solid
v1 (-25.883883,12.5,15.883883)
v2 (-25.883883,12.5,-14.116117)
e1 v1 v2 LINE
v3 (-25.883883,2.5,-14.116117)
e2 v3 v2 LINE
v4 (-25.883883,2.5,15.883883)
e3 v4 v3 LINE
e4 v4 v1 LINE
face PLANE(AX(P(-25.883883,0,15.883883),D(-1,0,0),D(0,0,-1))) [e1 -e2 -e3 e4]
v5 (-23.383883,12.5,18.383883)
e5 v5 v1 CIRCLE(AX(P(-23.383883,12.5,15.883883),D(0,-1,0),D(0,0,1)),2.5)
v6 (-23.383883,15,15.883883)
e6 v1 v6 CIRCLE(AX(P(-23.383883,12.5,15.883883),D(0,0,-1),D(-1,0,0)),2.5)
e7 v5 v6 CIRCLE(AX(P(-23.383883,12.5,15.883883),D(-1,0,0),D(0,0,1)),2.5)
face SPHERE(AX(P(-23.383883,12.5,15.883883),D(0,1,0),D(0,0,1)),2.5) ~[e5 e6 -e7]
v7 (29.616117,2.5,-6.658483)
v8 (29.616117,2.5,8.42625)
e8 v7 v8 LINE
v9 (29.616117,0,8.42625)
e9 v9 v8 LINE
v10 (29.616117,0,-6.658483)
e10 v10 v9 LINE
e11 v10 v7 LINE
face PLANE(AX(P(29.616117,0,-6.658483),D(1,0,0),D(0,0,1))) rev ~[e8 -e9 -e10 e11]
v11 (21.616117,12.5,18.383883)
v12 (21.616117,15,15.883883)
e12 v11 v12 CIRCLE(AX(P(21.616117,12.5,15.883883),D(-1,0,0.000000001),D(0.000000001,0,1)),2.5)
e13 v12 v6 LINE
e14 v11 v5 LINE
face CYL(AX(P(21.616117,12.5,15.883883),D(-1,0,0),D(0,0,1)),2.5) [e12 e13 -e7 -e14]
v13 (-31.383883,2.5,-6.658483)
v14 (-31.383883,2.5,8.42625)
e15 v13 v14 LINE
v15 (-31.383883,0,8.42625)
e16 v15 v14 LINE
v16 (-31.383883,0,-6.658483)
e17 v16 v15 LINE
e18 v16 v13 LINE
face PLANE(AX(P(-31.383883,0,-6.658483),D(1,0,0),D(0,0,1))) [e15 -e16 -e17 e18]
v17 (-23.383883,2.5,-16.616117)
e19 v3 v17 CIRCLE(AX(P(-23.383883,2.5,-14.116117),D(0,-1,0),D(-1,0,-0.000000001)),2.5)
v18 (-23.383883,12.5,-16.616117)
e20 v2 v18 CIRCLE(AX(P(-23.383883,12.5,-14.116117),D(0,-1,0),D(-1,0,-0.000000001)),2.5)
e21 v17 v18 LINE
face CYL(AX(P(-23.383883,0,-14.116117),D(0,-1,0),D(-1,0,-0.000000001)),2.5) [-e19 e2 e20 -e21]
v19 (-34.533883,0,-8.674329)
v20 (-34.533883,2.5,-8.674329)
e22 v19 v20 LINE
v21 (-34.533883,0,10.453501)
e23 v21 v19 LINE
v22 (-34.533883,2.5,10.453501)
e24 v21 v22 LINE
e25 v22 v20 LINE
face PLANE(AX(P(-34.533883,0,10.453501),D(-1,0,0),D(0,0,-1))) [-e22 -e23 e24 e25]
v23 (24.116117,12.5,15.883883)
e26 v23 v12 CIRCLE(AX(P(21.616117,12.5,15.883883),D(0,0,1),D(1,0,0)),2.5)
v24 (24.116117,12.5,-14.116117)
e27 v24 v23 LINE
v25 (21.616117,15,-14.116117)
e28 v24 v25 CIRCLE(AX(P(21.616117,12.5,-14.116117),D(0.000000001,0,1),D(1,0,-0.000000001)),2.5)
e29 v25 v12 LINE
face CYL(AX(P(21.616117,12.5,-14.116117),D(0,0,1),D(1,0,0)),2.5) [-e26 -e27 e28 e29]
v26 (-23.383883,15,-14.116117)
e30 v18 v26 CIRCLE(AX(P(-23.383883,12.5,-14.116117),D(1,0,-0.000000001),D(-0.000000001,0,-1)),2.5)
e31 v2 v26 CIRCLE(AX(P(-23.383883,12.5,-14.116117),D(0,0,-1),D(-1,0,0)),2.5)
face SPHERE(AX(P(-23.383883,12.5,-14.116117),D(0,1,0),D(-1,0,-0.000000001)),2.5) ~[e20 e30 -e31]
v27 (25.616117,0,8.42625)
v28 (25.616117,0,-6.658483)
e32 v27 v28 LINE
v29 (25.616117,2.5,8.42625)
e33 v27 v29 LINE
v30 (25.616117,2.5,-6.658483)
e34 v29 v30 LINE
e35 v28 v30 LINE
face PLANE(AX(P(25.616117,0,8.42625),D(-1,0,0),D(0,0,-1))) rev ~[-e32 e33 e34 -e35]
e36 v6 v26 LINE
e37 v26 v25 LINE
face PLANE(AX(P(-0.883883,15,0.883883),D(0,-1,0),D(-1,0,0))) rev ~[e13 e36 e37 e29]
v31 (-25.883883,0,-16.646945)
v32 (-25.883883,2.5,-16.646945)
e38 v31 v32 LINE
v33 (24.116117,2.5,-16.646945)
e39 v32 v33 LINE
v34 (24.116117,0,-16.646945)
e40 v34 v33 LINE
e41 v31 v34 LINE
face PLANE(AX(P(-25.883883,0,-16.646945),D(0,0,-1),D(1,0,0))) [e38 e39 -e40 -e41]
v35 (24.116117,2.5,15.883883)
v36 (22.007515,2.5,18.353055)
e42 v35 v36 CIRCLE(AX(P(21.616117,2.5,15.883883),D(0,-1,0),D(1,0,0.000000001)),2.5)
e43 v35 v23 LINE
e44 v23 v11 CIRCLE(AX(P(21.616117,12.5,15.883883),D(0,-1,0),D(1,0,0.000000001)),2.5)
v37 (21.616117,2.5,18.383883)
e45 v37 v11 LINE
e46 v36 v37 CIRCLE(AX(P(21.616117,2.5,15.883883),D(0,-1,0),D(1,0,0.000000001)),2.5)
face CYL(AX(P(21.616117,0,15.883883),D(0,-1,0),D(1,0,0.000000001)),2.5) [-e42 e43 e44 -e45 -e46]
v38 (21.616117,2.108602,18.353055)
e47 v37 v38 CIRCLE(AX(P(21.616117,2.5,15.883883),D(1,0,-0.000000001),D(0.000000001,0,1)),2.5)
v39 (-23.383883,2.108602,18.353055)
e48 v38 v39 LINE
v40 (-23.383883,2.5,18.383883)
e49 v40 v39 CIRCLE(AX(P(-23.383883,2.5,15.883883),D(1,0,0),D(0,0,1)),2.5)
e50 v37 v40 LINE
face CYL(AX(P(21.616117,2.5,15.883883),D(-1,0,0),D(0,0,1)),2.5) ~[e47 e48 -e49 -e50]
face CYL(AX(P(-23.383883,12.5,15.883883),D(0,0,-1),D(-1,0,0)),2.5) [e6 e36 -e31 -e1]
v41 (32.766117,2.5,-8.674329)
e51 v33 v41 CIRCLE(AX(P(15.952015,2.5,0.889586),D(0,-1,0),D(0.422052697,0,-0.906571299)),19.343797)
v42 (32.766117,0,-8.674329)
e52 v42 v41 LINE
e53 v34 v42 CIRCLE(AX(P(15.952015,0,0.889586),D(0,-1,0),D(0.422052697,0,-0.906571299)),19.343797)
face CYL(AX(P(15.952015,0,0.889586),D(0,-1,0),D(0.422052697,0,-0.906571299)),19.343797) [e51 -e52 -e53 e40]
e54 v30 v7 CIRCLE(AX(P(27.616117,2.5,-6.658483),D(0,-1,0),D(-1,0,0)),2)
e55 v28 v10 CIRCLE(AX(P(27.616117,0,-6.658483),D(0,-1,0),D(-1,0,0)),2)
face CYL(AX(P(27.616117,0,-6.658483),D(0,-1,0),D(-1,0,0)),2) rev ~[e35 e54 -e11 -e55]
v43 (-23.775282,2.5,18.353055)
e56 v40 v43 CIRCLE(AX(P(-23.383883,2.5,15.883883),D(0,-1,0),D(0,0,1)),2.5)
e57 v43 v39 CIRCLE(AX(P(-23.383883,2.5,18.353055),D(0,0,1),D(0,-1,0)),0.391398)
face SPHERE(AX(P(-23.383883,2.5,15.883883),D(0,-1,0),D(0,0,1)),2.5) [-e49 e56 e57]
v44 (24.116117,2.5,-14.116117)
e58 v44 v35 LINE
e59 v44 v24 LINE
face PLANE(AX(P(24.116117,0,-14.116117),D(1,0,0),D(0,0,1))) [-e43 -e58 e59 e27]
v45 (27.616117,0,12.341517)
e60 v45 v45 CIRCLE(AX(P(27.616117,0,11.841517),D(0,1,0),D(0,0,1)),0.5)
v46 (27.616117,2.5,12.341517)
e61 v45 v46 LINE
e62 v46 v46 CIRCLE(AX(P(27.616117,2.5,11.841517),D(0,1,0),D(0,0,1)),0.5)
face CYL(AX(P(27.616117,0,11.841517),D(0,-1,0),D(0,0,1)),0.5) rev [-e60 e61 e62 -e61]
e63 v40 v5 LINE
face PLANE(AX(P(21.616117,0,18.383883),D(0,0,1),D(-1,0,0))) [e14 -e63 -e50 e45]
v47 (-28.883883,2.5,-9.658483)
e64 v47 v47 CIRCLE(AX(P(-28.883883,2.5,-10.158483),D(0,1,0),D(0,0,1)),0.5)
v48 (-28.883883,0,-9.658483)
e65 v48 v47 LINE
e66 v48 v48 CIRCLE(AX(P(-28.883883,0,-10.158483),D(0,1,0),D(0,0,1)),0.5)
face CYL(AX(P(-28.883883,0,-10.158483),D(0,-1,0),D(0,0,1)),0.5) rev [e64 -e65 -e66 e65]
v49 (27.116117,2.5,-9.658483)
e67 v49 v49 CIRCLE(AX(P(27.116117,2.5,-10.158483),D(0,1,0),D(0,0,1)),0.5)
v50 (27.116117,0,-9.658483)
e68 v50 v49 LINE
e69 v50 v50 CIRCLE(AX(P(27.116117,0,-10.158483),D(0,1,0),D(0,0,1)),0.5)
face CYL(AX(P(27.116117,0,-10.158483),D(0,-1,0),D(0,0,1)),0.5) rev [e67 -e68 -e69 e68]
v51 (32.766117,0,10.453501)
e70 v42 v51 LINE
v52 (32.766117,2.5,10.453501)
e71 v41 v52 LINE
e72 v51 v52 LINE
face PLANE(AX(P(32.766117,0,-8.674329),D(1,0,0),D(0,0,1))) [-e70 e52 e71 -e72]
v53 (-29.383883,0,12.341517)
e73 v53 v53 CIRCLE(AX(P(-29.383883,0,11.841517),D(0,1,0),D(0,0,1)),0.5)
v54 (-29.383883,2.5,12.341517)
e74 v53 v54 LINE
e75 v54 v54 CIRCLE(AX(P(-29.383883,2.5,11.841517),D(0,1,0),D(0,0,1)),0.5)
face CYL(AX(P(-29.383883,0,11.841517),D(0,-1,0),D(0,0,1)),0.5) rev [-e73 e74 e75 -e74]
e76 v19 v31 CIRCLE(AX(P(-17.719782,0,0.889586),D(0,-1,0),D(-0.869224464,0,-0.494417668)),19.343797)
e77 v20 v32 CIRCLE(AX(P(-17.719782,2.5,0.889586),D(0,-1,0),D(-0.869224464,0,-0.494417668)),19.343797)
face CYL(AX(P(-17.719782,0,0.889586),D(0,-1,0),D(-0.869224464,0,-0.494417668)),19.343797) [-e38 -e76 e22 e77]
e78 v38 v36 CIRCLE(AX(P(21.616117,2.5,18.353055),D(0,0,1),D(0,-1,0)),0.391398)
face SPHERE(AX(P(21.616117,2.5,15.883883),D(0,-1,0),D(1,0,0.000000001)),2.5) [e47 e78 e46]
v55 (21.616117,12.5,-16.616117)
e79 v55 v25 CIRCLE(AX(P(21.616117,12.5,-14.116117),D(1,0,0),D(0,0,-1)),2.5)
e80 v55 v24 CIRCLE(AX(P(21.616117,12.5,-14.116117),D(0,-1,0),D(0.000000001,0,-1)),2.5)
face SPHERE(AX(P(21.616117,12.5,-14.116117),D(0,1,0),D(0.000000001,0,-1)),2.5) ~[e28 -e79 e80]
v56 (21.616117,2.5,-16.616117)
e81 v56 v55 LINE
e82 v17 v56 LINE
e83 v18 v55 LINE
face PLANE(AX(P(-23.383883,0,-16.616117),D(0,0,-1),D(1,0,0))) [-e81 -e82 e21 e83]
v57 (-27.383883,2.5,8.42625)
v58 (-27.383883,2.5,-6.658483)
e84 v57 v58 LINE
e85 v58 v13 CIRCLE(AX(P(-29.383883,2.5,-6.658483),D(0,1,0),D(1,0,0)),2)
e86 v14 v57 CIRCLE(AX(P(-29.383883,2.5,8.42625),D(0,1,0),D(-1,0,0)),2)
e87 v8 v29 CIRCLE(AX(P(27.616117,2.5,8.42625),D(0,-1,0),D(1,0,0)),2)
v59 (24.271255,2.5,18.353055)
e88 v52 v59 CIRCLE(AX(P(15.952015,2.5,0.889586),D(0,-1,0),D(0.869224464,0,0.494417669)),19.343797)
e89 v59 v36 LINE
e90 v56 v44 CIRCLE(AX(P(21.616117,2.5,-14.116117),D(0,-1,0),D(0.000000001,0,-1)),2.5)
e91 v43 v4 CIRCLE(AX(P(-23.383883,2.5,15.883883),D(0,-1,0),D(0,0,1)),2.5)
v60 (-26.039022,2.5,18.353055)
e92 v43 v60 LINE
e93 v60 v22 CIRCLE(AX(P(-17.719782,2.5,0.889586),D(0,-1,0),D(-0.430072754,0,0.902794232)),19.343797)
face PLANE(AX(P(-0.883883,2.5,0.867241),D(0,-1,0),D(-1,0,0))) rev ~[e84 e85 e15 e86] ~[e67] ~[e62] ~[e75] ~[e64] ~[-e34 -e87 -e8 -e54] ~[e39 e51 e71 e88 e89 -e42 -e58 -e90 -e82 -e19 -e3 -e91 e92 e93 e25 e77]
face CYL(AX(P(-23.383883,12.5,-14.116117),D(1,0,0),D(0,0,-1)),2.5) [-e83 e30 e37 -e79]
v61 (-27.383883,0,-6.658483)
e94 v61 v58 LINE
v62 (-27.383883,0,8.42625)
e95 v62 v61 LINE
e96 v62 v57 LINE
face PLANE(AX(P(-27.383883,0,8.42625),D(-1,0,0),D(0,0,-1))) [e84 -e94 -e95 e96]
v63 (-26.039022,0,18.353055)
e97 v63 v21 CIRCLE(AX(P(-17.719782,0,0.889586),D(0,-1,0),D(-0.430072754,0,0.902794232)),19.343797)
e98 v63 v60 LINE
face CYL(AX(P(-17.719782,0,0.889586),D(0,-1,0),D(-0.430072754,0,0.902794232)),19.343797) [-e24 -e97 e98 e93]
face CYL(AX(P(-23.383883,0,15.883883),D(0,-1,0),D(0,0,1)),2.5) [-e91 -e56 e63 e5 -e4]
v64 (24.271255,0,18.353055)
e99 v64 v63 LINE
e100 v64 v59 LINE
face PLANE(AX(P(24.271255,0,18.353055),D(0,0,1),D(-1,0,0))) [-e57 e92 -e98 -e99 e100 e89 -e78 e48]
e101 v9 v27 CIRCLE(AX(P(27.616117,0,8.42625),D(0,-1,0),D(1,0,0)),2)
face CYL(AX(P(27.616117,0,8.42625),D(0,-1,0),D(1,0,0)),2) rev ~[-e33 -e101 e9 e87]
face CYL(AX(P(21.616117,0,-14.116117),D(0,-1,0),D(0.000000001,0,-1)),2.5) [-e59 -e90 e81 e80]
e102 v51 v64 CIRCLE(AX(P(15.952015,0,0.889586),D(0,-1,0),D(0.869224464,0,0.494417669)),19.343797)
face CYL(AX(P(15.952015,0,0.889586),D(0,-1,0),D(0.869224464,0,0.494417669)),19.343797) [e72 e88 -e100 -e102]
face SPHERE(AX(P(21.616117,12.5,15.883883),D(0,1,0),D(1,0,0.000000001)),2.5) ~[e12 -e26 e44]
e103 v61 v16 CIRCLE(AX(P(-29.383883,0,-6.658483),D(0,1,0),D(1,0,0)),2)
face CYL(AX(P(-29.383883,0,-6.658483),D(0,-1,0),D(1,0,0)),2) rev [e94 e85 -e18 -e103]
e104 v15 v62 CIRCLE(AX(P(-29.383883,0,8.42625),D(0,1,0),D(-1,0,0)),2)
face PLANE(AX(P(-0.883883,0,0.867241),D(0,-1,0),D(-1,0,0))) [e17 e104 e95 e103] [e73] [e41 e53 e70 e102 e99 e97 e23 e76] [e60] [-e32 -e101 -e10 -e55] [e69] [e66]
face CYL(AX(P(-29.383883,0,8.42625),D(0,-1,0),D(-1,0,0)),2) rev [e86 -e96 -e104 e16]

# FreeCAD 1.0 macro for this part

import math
import FreeCAD as App
import Part
import Sketcher

V = App.Vector
Q = App.Units.Quantity


def edges_at(feature, points):
    """Names of the edges that pass closest to the given points."""
    edges = feature.Shape.Edges
    near = lambda p: min(range(len(edges)), key=lambda i: edges[i].distToShape(Part.Vertex(*p))[0])
    return sorted({f"Edge{near(p) + 1}" for p in points})

doc = App.newDocument("Part")
params = doc.addObject("Spreadsheet::Sheet", "Params")
for row, (alias, value) in enumerate([
    ("sketch1_radius", "2.5 mm"),
    ("sketch1_width", "45 mm"),
    ("sketch1_height", "30 mm"),
    ("pad1_length", "15 mm"),
    ("fillet_radius", "2.5 mm"),
    ("sketch2_diameter", "1 mm"),
    ("sketch2_radius", "2 mm"),
    ("sketch2_width", "50 mm"),
    ("pad2_length", "2.5 mm"),
], start=1):
    params.set(f"A{row}", alias)
    params.set(f"B{row}", "=" + value)
    params.setAlias(f"B{row}", alias)

body = doc.addObject("PartDesign::Body", "Body")

# Sketch on XZ plane
sketch1 = body.newObject("Sketcher::SketchObject", "Sketch")
sketch1.AttachmentSupport = (doc.getObject("XZ_Plane"), [""])
sketch1.MapMode = "FlatFace"
sketch1.addGeometry([
    Part.LineSegment(V(21.616117, -16.616117, 0), V(-23.383883, -16.616117, 0)),  # 0
    Part.ArcOfCircle(Part.Circle(V(-23.383883, -14.116117, 0), V(0, 0, 1), 2.5), math.radians(-180), math.radians(-90)),  # 1
    Part.LineSegment(V(-25.883883, -14.116117, 0), V(-25.883883, 15.883883, 0)),  # 2
    Part.ArcOfCircle(Part.Circle(V(-23.383883, 15.883883, 0), V(0, 0, 1), 2.5), math.radians(90), math.radians(180)),  # 3
    Part.LineSegment(V(-23.383883, 18.383883, 0), V(21.616117, 18.383883, 0)),  # 4
    Part.ArcOfCircle(Part.Circle(V(21.616117, 15.883883, 0), V(0, 0, 1), 2.5), math.radians(0), math.radians(90)),  # 5
    Part.LineSegment(V(24.116117, 15.883883, 0), V(24.116117, -14.116117, 0)),  # 6
    Part.ArcOfCircle(Part.Circle(V(21.616117, -14.116117, 0), V(0, 0, 1), 2.5), math.radians(-90), math.radians(0)),  # 7
], False)
sketch1.addConstraint([
    Sketcher.Constraint("Tangent", 0, 2, 1, 2),
    Sketcher.Constraint("Tangent", 1, 1, 2, 1),
    Sketcher.Constraint("Tangent", 2, 2, 3, 2),
    Sketcher.Constraint("Tangent", 3, 1, 4, 1),
    Sketcher.Constraint("Tangent", 4, 2, 5, 2),
    Sketcher.Constraint("Tangent", 5, 1, 6, 1),
    Sketcher.Constraint("Tangent", 6, 2, 7, 2),
    Sketcher.Constraint("Tangent", 7, 1, 0, 1),
    Sketcher.Constraint("Horizontal", 0),
    Sketcher.Constraint("Vertical", 2),
    Sketcher.Constraint("Horizontal", 4),
    Sketcher.Constraint("Vertical", 6),
    Sketcher.Constraint("Equal", 1, 3),
    Sketcher.Constraint("Equal", 3, 5),
    Sketcher.Constraint("Equal", 5, 7),
    Sketcher.Constraint("Radius", 1, Q("2.5 mm")),
    Sketcher.Constraint("DistanceX", 0, 2, 0, 1, Q("45 mm")),
    Sketcher.Constraint("DistanceY", 2, 1, 2, 2, Q("30 mm")),
    Sketcher.Constraint("DistanceX", 1, 3, -1, 1, Q("23.383883 mm")),
    Sketcher.Constraint("DistanceY", 1, 3, -1, 1, Q("14.116117 mm")),
])
sketch1.setExpression("Constraints[15]", "Params.sketch1_radius")
sketch1.setExpression("Constraints[16]", "Params.sketch1_width")
sketch1.setExpression("Constraints[17]", "Params.sketch1_height")
pad1 = body.newObject("PartDesign::Pad", "Pad")
pad1.Profile = sketch1
pad1.setExpression("Length", "Params.pad1_length")
pad1.Reversed = True
doc.recompute()

fillet = body.newObject("PartDesign::Fillet", "Fillet")
fillet.Base = (pad1, edges_at(pad1, [
    (-25.152, 15, 17.652),
    (-25.884, 0, 0.884),
    (-25.152, 0, -15.884),
    (-0.884, 15, 18.384),
    (23.384, 15, 17.652),
    (24.116, 15, 0.884),
    (23.384, 15, -15.884),
    (-0.884, 15, -16.616),
    (-25.152, 15, -15.884),
    (-25.884, 15, 0.884),
    (-0.884, 0, -16.616),
    (23.384, 0, -15.884),
    (24.116, 0, 0.884),
    (23.384, 0, 17.652),
    (-0.884, 0, 18.384),
    (-25.152, 0, 17.652),
]))
fillet.setExpression("Radius", "Params.fillet_radius")

# Sketch on XZ plane
sketch2 = body.newObject("Sketcher::SketchObject", "Sketch001")
sketch2.AttachmentSupport = (doc.getObject("XZ_Plane"), [""])
sketch2.MapMode = "FlatFace"
sketch2.addGeometry([
    Part.LineSegment(V(24.116117, -16.646945, 0), V(-25.883883, -16.646945, 0)),  # 0
    Part.ArcOfCircle(Part.Circle(V(-17.719782, 0.889586, 0), V(0, 0, 1), 19.343797), math.radians(-150.368642), math.radians(-114.964251)),  # 1
    Part.LineSegment(V(-34.533883, -8.674329, 0), V(-34.533883, 10.453501, 0)),  # 2
    Part.ArcOfCircle(Part.Circle(V(-17.719782, 0.889586, 0), V(0, 0, 1), 19.343797), math.radians(115.472177), math.radians(150.368642)),  # 3
    Part.LineSegment(V(-26.039022, 18.353055, 0), V(24.271255, 18.353055, 0)),  # 4
    Part.ArcOfCircle(Part.Circle(V(15.952015, 0.889586, 0), V(0, 0, 1), 19.343797), math.radians(29.631358), math.radians(64.527823)),  # 5
    Part.LineSegment(V(32.766117, 10.453501, 0), V(32.766117, -8.674329, 0)),  # 6
    Part.ArcOfCircle(Part.Circle(V(15.952015, 0.889586, 0), V(0, 0, 1), 19.343797), math.radians(-65.035749), math.radians(-29.631358)),  # 7
    Part.Circle(V(27.616117, 11.841517, 0), V(0, 0, 1), 0.5),  # 8
    Part.LineSegment(V(29.616117, -6.658483, 0), V(29.616117, 8.42625, 0)),  # 9
    Part.ArcOfCircle(Part.Circle(V(27.616117, 8.42625, 0), V(0, 0, 1), 2), math.radians(0), math.radians(180)),  # 10
    Part.LineSegment(V(25.616117, 8.42625, 0), V(25.616117, -6.658483, 0)),  # 11
    Part.ArcOfCircle(Part.Circle(V(27.616117, -6.658483, 0), V(0, 0, 1), 2), math.radians(180), math.radians(360)),  # 12
    Part.Circle(V(-29.383883, 11.841517, 0), V(0, 0, 1), 0.5),  # 13
    Part.ArcOfCircle(Part.Circle(V(-29.383883, -6.658483, 0), V(0, 0, 1), 2), math.radians(180), math.radians(360)),  # 14
    Part.LineSegment(V(-27.383883, -6.658483, 0), V(-27.383883, 8.42625, 0)),  # 15
    Part.ArcOfCircle(Part.Circle(V(-29.383883, 8.42625, 0), V(0, 0, 1), 2), math.radians(0), math.radians(180)),  # 16
    Part.LineSegment(V(-31.383883, 8.42625, 0), V(-31.383883, -6.658483, 0)),  # 17
    Part.Circle(V(27.116117, -10.158483, 0), V(0, 0, 1), 0.5),  # 18
    Part.Circle(V(-28.883883, -10.158483, 0), V(0, 0, 1), 0.5),  # 19
], False)
sketch2.addConstraint([
    Sketcher.Constraint("Coincident", 0, 2, 1, 2),
    Sketcher.Constraint("Coincident", 1, 1, 2, 1),
    Sketcher.Constraint("Coincident", 2, 2, 3, 2),
    Sketcher.Constraint("Coincident", 3, 1, 4, 1),
    Sketcher.Constraint("Coincident", 4, 2, 5, 2),
    Sketcher.Constraint("Coincident", 5, 1, 6, 1),
    Sketcher.Constraint("Coincident", 6, 2, 7, 2),
    Sketcher.Constraint("Coincident", 7, 1, 0, 1),
    Sketcher.Constraint("Tangent", 9, 2, 10, 1),
    Sketcher.Constraint("Tangent", 10, 2, 11, 1),
    Sketcher.Constraint("Tangent", 11, 2, 12, 1),
    Sketcher.Constraint("Tangent", 12, 2, 9, 1),
    Sketcher.Constraint("Tangent", 14, 2, 15, 1),
    Sketcher.Constraint("Tangent", 15, 2, 16, 1),
    Sketcher.Constraint("Tangent", 16, 2, 17, 1),
    Sketcher.Constraint("Tangent", 17, 2, 14, 1),
    Sketcher.Constraint("Horizontal", 0),
    Sketcher.Constraint("Vertical", 2),
    Sketcher.Constraint("Horizontal", 4),
    Sketcher.Constraint("Vertical", 6),
    Sketcher.Constraint("Vertical", 9),
    Sketcher.Constraint("Vertical", 11),
    Sketcher.Constraint("Vertical", 15),
    Sketcher.Constraint("Vertical", 17),
    Sketcher.Constraint("Coincident", 3, 3, 1, 3),
    Sketcher.Constraint("Coincident", 7, 3, 5, 3),
    Sketcher.Constraint("Equal", 1, 3),
    Sketcher.Constraint("Equal", 3, 5),
    Sketcher.Constraint("Equal", 5, 7),
    Sketcher.Constraint("Equal", 8, 13),
    Sketcher.Constraint("Equal", 12, 14),
    Sketcher.Constraint("Equal", 13, 18),
    Sketcher.Constraint("Equal", 18, 19),
    Sketcher.Constraint("Horizontal", 3, 3, 5, 3),
    Sketcher.Constraint("Horizontal", 8, 3, 13, 3),
    Sketcher.Constraint("Horizontal", 12, 3, 14, 3),
    Sketcher.Constraint("Horizontal", 10, 3, 16, 3),
    Sketcher.Constraint("Horizontal", 18, 3, 19, 3),
    Sketcher.Constraint("Horizontal", 2, 2, 5, 1),
    Sketcher.Constraint("Vertical", 8, 3, 10, 3),
    Sketcher.Constraint("Vertical", 13, 3, 14, 3),
    Sketcher.Constraint("Diameter", 8, Q("1 mm")),
    Sketcher.Constraint("Radius", 10, Q("2 mm")),
    Sketcher.Constraint("DistanceX", 0, 2, 0, 1, Q("50 mm")),
    Sketcher.Constraint("DistanceX", 13, 3, 8, 3, Q("57 mm")),
    Sketcher.Constraint("DistanceY", 18, 3, 8, 3, Q("22 mm")),
    Sketcher.Constraint("DistanceX", 19, 3, 0, 2, Q("3 mm")),
    Sketcher.Constraint("DistanceX", 7, 1, 18, 3, Q("3 mm")),
    Sketcher.Constraint("DistanceY", 12, 3, 8, 3, Q("18.5 mm")),
    Sketcher.Constraint("DistanceX", 18, 3, 12, 3, Q("0.5 mm")),
    Sketcher.Constraint("DistanceX", 1, 1, 14, 3, Q("5.15 mm")),
    Sketcher.Constraint("Radius", 1, Q("19.343797 mm")),
    Sketcher.Constraint("DistanceY", 2, 1, 2, 2, Q("19.12783 mm")),
    Sketcher.Constraint("DistanceY", -1, 1, 2, 2, Q("10.453501 mm")),
    Sketcher.Constraint("DistanceX", 4, 1, 4, 2, Q("50.310277 mm")),
    Sketcher.Constraint("DistanceY", 9, 1, 9, 2, Q("15.084734 mm")),
    Sketcher.Constraint("DistanceX", 1, 3, -1, 1, Q("17.719782 mm")),
    Sketcher.Constraint("DistanceY", -1, 1, 10, 3, Q("8.42625 mm")),
])
sketch2.setExpression("Constraints[41]", "Params.sketch2_diameter")
sketch2.setExpression("Constraints[42]", "Params.sketch2_radius")
sketch2.setExpression("Constraints[43]", "Params.sketch2_width")
pad2 = body.newObject("PartDesign::Pad", "Pad001")
pad2.Profile = sketch2
pad2.setExpression("Length", "Params.pad2_length")
pad2.Reversed = True

doc.recompute()
